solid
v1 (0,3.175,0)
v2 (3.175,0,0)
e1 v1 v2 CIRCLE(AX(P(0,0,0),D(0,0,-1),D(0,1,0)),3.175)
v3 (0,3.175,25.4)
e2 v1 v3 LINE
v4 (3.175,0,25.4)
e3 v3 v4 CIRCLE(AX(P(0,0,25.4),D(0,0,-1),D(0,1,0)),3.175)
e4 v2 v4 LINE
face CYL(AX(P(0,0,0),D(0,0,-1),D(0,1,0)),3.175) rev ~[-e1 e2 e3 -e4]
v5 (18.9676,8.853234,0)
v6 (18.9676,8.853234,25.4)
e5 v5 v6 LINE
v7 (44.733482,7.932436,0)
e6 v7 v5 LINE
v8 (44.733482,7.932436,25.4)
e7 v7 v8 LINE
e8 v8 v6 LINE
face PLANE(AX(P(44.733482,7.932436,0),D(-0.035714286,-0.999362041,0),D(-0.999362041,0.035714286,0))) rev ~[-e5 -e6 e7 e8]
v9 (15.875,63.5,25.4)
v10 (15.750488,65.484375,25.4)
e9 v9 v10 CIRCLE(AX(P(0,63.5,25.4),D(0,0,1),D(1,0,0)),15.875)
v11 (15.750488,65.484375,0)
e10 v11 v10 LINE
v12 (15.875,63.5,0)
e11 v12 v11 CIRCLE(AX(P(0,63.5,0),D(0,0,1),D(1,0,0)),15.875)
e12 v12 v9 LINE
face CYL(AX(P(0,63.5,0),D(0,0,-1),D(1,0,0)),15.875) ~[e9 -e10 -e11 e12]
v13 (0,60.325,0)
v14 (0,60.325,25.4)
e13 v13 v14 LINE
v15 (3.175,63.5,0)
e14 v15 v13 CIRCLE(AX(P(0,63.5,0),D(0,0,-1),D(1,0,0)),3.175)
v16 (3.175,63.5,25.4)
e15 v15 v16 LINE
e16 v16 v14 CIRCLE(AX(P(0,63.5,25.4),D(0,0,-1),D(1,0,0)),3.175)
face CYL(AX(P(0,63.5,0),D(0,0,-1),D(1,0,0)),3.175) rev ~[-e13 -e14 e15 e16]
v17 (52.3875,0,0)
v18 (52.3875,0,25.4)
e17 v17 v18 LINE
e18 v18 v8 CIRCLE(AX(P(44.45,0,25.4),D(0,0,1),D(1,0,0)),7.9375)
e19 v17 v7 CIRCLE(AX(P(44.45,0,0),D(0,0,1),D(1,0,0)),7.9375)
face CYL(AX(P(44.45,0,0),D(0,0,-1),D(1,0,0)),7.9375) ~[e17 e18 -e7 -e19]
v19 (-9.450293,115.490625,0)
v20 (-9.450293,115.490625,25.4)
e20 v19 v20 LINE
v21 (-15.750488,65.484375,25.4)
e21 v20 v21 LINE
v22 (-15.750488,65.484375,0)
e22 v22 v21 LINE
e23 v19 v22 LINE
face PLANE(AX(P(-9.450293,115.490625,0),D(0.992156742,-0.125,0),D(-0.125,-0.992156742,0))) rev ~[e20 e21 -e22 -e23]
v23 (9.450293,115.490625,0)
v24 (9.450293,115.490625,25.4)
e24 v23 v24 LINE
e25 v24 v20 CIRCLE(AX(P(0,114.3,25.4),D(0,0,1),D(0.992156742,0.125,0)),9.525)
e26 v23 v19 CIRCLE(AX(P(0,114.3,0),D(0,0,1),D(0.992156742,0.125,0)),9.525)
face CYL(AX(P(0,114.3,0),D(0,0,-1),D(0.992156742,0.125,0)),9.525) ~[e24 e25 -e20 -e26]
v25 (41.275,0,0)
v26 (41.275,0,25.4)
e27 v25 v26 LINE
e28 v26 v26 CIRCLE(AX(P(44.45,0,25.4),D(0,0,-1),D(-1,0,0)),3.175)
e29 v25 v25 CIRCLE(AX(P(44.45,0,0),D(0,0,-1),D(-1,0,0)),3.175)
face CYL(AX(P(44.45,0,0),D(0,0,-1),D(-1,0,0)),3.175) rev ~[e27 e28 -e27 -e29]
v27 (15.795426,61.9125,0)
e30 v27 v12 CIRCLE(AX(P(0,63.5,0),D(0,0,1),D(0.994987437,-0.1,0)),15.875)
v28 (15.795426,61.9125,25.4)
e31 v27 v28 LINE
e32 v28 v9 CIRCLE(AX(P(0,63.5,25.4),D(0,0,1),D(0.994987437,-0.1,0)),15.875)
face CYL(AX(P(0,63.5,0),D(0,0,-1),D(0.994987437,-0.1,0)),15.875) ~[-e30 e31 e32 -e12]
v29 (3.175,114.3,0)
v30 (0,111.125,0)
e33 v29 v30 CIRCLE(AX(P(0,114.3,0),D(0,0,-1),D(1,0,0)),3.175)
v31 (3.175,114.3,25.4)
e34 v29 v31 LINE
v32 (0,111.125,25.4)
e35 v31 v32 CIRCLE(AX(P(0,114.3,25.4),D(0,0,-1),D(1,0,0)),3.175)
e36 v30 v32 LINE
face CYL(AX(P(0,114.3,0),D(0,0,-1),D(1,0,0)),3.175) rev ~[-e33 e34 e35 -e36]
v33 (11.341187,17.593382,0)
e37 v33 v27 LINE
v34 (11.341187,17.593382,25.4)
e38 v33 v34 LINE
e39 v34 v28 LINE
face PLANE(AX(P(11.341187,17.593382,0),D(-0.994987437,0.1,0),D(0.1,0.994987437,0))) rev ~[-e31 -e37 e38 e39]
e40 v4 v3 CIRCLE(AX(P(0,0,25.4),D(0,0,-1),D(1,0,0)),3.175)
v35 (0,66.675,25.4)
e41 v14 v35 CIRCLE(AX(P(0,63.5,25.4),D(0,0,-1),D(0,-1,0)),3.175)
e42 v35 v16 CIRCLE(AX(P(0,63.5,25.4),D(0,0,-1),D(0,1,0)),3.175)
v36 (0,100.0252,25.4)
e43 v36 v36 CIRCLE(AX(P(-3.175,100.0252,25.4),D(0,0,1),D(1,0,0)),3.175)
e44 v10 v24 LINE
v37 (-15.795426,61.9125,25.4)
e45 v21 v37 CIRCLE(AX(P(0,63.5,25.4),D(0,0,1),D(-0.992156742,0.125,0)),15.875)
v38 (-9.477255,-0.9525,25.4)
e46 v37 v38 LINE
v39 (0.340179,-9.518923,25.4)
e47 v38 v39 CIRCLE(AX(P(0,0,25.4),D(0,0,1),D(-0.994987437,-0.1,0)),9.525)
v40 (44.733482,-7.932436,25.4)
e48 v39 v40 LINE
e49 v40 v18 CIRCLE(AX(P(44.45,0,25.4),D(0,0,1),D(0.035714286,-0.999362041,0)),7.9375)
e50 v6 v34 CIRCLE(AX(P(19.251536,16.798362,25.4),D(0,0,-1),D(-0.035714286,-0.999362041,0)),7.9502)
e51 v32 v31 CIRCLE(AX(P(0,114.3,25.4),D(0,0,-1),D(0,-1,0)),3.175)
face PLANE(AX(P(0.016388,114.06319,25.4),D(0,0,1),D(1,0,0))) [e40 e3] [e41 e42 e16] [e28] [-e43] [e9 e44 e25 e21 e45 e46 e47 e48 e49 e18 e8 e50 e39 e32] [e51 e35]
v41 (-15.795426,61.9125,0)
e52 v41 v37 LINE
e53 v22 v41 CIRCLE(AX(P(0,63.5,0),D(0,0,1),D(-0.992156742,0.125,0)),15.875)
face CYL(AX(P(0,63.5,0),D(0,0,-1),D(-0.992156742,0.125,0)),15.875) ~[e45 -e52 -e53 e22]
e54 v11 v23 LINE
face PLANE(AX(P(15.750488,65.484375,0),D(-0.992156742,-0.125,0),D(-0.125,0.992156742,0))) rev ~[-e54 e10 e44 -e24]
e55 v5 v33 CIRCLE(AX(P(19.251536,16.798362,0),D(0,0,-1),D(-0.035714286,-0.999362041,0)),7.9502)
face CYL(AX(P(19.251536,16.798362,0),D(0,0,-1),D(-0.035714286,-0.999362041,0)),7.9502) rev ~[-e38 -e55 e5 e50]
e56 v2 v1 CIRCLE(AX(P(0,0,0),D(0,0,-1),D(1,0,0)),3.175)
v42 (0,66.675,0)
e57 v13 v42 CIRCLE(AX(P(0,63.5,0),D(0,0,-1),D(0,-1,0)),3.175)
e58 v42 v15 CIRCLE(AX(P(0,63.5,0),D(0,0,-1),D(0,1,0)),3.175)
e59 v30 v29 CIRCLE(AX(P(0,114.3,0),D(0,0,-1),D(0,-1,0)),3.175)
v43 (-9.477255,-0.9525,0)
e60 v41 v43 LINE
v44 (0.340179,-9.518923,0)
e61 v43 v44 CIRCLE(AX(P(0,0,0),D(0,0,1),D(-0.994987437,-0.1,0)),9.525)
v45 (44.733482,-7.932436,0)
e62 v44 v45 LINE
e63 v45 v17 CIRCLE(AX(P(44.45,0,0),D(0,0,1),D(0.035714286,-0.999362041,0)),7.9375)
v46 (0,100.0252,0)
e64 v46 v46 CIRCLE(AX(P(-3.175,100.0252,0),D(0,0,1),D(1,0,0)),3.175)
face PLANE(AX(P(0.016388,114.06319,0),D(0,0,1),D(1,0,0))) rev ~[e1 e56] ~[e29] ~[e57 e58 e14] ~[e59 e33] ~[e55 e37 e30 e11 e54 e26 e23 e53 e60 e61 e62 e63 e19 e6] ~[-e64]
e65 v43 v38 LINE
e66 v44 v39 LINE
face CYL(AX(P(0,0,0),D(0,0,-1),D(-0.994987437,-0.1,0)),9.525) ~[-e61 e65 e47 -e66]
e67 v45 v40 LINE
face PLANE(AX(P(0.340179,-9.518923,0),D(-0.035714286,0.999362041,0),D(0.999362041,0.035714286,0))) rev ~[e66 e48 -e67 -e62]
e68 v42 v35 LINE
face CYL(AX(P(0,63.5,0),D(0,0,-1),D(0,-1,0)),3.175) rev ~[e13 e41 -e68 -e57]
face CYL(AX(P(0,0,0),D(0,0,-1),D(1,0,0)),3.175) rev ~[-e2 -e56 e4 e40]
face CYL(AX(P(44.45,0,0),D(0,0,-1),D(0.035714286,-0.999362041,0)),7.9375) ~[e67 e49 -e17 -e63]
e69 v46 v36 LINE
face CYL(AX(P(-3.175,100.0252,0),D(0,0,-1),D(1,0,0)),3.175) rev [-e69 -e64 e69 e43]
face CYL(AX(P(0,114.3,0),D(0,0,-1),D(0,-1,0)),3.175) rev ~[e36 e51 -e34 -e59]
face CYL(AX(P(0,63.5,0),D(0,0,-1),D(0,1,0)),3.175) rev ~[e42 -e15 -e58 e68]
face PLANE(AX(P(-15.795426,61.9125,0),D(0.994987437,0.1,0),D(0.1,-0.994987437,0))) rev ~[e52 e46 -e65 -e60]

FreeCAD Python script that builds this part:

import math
import FreeCAD as App
import Part
import Sketcher
from FreeCAD import Vector
Q = App.Units.Quantity

doc = App.newDocument("Part")
body = doc.addObject("PartDesign::Body", "Body")

# Sketch on XY plane
sketch1 = body.newObject("Sketcher::SketchObject", "Sketch")
sketch1.AttachmentSupport = (doc.getObject("XY_Plane"), [""])
sketch1.MapMode = "FlatFace"
sketch1.addGeometry([
    Part.ArcOfCircle(Part.Circle(Vector(0, 114.3, 0), Vector(0, 0, 1), 9.525), math.radians(7.180756), math.radians(172.819244)),  # 0
    Part.LineSegment(Vector(-9.450293, 115.490625, 0), Vector(-15.750488, 65.484375, 0)),  # 1
    Part.ArcOfCircle(Part.Circle(Vector(0, 63.5, 0), Vector(0, 0, 1), 15.875), math.radians(172.819244), math.radians(185.73917)),  # 2
    Part.LineSegment(Vector(-15.795426, 61.9125, 0), Vector(-9.477255, -0.9525, 0)),  # 3
    Part.ArcOfCircle(Part.Circle(Vector(0, 0, 0), Vector(0, 0, 1), 9.525), math.radians(-174.26083), math.radians(-87.953287)),  # 4
    Part.LineSegment(Vector(0.340179, -9.518923, 0), Vector(44.733482, -7.932436, 0)),  # 5
    Part.ArcOfCircle(Part.Circle(Vector(44.45, 0, 0), Vector(0, 0, 1), 7.9375), math.radians(-87.953287), math.radians(0)),  # 6
    Part.ArcOfCircle(Part.Circle(Vector(44.45, 0, 0), Vector(0, 0, 1), 7.9375), math.radians(0), math.radians(87.953287)),  # 7
    Part.LineSegment(Vector(44.733482, 7.932436, 0), Vector(18.9676, 8.853234, 0)),  # 8
    Part.ArcOfCircle(Part.Circle(Vector(19.251536, 16.798362, 0), Vector(0, 0, 1), 7.9502), math.radians(174.26083), math.radians(267.953287)),  # 9
    Part.LineSegment(Vector(11.341187, 17.593382, 0), Vector(15.795426, 61.9125, 0)),  # 10
    Part.ArcOfCircle(Part.Circle(Vector(0, 63.5, 0), Vector(0, 0, 1), 15.875), math.radians(-5.73917), math.radians(0)),  # 11
    Part.ArcOfCircle(Part.Circle(Vector(0, 63.5, 0), Vector(0, 0, 1), 15.875), math.radians(0), math.radians(7.180756)),  # 12
    Part.LineSegment(Vector(15.750488, 65.484375, 0), Vector(9.450293, 115.490625, 0)),  # 13
    Part.ArcOfCircle(Part.Circle(Vector(0, 0, 0), Vector(0, 0, 1), 3.175), math.radians(0), math.radians(90)),  # 14
    Part.ArcOfCircle(Part.Circle(Vector(0, 0, 0), Vector(0, 0, 1), 3.175), math.radians(90), math.radians(360)),  # 15
    Part.Circle(Vector(44.45, 0, 0), Vector(0, 0, 1), 3.175),  # 16
    Part.ArcOfCircle(Part.Circle(Vector(0, 63.5, 0), Vector(0, 0, 1), 3.175), math.radians(0), math.radians(90)),  # 17
    Part.ArcOfCircle(Part.Circle(Vector(0, 63.5, 0), Vector(0, 0, 1), 3.175), math.radians(-90), math.radians(0)),  # 18
    Part.ArcOfCircle(Part.Circle(Vector(0, 63.5, 0), Vector(0, 0, 1), 3.175), math.radians(90), math.radians(270)),  # 19
    Part.Circle(Vector(-3.175, 100.0252, 0), Vector(0, 0, 1), 3.175),  # 20
    Part.ArcOfCircle(Part.Circle(Vector(0, 114.3, 0), Vector(0, 0, 1), 3.175), math.radians(0), math.radians(270)),  # 21
    Part.ArcOfCircle(Part.Circle(Vector(0, 114.3, 0), Vector(0, 0, 1), 3.175), math.radians(-90), math.radians(0)),  # 22
], False)
sketch1.addConstraint([
    Sketcher.Constraint("Tangent", 0, 2, 1, 1),
    Sketcher.Constraint("Tangent", 1, 2, 2, 1),
    Sketcher.Constraint("Tangent", 2, 2, 3, 1),
    Sketcher.Constraint("Tangent", 3, 2, 4, 1),
    Sketcher.Constraint("Tangent", 4, 2, 5, 1),
    Sketcher.Constraint("Tangent", 5, 2, 6, 1),
    Sketcher.Constraint("Tangent", 6, 2, 7, 1),
    Sketcher.Constraint("Tangent", 7, 2, 8, 1),
    Sketcher.Constraint("Tangent", 8, 2, 9, 2),
    Sketcher.Constraint("Tangent", 9, 1, 10, 1),
    Sketcher.Constraint("Tangent", 10, 2, 11, 1),
    Sketcher.Constraint("Tangent", 11, 2, 12, 1),
    Sketcher.Constraint("Tangent", 12, 2, 13, 1),
    Sketcher.Constraint("Tangent", 13, 2, 0, 1),
    Sketcher.Constraint("Tangent", 14, 1, 15, 2),
    Sketcher.Constraint("Coincident", 15, 1, 14, 2),
    Sketcher.Constraint("Tangent", 17, 1, 18, 2),
    Sketcher.Constraint("Tangent", 18, 1, 19, 2),
    Sketcher.Constraint("Tangent", 19, 1, 17, 2),
    Sketcher.Constraint("Tangent", 21, 1, 22, 2),
    Sketcher.Constraint("Coincident", 22, 1, 21, 2),
    Sketcher.Constraint("Coincident", 4, 3, -1, 1),
    Sketcher.Constraint("Coincident", 14, 3, -1, 1),
    Sketcher.Constraint("Coincident", 11, 3, 2, 3),
    Sketcher.Constraint("Coincident", 16, 3, 6, 3),
    Sketcher.Constraint("Coincident", 17, 3, 2, 3),
    Sketcher.Constraint("Coincident", 21, 3, 0, 3),
    Sketcher.Constraint("Equal", 0, 4),
    Sketcher.Constraint("Equal", 6, 7),
    Sketcher.Constraint("Equal", 2, 11),
    Sketcher.Constraint("Equal", 11, 12),
    Sketcher.Constraint("Equal", 15, 16),
    Sketcher.Constraint("Equal", 16, 17),
    Sketcher.Constraint("Equal", 19, 20),
    Sketcher.Constraint("Equal", 20, 21),
    Sketcher.Constraint("Symmetric", 2, 2, 10, 2, -2),
    Sketcher.Constraint("Symmetric", 5, 2, 7, 2, -1),
    Sketcher.Constraint("PointOnObject", 0, 3, -2),
    Sketcher.Constraint("PointOnObject", 6, 2, -1),
    Sketcher.Constraint("PointOnObject", 14, 1, -1),
    Sketcher.Constraint("PointOnObject", 15, 1, -2),
    Sketcher.Constraint("PointOnObject", 18, 1, -2),
    Sketcher.Constraint("PointOnObject", 19, 1, -2),
    Sketcher.Constraint("PointOnObject", 22, 1, -2),
    Sketcher.Constraint("Horizontal", 19, 3, 11, 2),
    Sketcher.Constraint("Horizontal", 11, 2, 17, 1),
    Sketcher.Constraint("Horizontal", 22, 3, 21, 1),
    Sketcher.Constraint("Diameter", 16, Q("0.25 in")),
    Sketcher.Constraint("Radius", 0, Q("0.375 in")),
    Sketcher.Constraint("Radius", 2, Q("0.625 in")),
    Sketcher.Constraint("Radius", 6, Q("0.3125 in")),
    Sketcher.Constraint("Radius", 9, Q("0.313 in")),
    Sketcher.Constraint("DistanceY", 2, 3, 0, 3, Q("2 in")),
    Sketcher.Constraint("DistanceY", -1, 1, 0, 3, Q("4.5 in")),
    Sketcher.Constraint("DistanceX", -1, 1, 6, 3, Q("1.75 in")),
    Sketcher.Constraint("DistanceX", 20, 3, -1, 1, Q("0.125 in")),
    Sketcher.Constraint("DistanceY", -1, 1, 20, 3, Q("3.938 in")),
])
pad1 = body.newObject("PartDesign::Pad", "Pad")
pad1.Profile = sketch1
pad1.Length = Q("1 in")

doc.recompute()
